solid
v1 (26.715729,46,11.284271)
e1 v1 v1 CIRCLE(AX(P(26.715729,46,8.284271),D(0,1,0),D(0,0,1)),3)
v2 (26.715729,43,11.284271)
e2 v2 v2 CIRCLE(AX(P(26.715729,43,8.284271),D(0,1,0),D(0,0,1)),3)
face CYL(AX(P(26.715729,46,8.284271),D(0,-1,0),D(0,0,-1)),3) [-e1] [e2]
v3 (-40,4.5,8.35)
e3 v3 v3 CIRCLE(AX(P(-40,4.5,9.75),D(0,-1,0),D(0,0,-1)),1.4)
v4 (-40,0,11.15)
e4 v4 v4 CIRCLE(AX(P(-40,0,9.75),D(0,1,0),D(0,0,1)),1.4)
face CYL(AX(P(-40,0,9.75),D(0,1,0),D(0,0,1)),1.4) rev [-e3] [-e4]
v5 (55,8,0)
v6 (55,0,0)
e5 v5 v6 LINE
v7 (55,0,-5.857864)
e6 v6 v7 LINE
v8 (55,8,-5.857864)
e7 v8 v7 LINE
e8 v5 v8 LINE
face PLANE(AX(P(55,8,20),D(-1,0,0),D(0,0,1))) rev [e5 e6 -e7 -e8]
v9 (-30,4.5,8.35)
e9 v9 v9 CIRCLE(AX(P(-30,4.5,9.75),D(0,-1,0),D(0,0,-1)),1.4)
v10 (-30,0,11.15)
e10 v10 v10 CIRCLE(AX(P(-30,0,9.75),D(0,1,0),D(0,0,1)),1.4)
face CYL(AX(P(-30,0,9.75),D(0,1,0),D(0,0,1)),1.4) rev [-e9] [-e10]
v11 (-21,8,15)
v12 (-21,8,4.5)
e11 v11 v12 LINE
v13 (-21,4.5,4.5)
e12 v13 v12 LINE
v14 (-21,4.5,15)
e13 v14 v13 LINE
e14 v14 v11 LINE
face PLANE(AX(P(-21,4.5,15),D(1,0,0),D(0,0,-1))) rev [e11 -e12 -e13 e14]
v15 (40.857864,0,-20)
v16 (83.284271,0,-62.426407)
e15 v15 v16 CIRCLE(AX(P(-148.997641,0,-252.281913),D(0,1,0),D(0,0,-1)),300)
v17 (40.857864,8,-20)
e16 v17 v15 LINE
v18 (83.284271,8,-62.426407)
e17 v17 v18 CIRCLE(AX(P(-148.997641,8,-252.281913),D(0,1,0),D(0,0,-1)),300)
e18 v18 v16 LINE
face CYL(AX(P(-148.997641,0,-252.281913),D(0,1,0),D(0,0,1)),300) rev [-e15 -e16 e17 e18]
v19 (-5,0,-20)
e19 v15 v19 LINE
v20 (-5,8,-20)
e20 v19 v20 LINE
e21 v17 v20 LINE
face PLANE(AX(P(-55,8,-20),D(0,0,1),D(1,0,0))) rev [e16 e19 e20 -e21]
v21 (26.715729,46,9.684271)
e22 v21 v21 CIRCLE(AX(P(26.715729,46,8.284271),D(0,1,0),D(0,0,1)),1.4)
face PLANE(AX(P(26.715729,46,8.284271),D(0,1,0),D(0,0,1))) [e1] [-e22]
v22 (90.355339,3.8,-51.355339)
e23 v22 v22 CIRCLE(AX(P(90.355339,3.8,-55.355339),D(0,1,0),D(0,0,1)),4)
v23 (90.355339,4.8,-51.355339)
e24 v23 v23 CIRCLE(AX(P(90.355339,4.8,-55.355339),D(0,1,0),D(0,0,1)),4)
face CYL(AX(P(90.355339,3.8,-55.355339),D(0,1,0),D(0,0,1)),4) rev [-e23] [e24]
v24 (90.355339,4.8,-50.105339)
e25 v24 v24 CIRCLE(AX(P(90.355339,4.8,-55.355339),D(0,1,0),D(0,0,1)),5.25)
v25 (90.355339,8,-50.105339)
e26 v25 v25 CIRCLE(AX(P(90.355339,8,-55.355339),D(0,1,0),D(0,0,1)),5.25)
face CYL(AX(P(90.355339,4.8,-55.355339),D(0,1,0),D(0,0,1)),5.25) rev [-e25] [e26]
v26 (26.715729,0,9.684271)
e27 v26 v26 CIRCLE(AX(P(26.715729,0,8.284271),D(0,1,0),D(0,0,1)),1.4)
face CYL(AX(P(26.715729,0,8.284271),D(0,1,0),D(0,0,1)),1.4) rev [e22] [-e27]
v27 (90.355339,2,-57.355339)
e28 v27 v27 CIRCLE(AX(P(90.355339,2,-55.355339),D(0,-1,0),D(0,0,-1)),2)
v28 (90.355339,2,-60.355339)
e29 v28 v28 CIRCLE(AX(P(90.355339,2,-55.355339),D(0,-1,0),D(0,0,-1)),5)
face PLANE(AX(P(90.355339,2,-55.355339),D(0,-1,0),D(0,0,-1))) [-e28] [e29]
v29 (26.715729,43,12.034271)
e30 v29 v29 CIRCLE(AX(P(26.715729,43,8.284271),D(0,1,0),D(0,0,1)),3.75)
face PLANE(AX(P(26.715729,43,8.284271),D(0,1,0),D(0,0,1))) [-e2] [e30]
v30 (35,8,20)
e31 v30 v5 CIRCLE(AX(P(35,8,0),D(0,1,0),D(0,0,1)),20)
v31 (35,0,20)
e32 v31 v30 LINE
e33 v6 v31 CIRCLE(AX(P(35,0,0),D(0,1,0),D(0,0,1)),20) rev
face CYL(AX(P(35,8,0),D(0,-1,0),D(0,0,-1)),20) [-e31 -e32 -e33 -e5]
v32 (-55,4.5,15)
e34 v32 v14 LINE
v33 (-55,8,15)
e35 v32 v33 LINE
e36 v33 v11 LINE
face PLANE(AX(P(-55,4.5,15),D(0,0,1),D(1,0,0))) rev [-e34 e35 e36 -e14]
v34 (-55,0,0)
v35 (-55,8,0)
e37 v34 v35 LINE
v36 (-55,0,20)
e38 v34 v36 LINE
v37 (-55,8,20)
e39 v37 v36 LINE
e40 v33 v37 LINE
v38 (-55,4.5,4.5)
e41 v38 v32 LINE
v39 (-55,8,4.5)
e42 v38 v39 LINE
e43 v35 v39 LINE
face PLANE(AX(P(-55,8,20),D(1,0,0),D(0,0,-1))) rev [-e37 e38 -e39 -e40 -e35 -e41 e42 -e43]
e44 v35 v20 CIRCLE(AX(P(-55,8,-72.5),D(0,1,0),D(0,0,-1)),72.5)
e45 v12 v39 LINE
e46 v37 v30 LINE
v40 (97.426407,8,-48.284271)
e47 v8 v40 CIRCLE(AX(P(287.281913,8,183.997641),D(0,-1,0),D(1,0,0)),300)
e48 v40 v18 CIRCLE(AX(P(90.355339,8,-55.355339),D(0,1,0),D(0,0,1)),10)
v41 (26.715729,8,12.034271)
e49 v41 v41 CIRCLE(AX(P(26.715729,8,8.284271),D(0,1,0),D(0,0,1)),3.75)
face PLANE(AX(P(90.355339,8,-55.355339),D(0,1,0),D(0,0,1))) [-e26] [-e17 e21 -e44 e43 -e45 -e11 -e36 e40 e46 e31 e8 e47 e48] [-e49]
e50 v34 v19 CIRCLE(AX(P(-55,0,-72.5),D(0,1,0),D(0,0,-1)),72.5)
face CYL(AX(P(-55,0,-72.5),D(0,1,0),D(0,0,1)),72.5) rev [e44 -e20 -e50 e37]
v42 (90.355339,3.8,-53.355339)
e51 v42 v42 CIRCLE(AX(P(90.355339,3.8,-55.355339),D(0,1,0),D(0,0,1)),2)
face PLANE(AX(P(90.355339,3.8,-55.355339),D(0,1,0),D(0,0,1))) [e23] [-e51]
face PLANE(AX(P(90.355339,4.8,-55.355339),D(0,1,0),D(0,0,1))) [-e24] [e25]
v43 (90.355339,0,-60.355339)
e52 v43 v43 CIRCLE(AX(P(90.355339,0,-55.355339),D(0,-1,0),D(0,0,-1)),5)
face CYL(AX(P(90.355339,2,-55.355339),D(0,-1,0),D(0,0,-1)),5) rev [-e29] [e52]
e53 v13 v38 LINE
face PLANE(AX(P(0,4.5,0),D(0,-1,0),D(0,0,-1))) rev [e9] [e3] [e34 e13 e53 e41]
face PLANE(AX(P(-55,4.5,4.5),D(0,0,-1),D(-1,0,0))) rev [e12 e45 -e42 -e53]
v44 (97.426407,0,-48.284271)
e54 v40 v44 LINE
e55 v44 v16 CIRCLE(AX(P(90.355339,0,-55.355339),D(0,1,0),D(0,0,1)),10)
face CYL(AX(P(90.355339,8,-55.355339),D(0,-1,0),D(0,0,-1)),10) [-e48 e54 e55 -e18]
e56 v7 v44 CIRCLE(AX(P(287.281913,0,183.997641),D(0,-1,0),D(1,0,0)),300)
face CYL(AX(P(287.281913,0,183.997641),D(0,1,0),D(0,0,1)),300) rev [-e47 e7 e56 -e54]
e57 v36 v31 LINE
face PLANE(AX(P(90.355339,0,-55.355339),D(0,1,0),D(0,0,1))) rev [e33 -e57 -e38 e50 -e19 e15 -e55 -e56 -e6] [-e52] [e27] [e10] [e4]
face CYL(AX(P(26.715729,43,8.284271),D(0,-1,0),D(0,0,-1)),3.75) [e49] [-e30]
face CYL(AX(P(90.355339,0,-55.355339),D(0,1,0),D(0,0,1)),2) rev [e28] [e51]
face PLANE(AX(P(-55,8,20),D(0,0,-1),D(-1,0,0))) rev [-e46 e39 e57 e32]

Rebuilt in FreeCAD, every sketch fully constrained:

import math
import FreeCAD as App
import Part
import Sketcher
from FreeCAD import Vector
Q = App.Units.Quantity


def edges_at(feature, points):
    """Names of the edges that pass closest to the given points."""
    edges = feature.Shape.Edges
    near = lambda p: min(range(len(edges)), key=lambda i: edges[i].distToShape(Part.Vertex(*p))[0])
    return sorted({f"Edge{near(p) + 1}" for p in points})

doc = App.newDocument("Part")
body = doc.addObject("PartDesign::Body", "Body")

sketch1 = body.newObject("Sketcher::SketchObject", "Sketch")
sketch1.AttachmentSupport = (doc.getObject("XZ_Plane"), [""])
sketch1.MapMode = "FlatFace"
sketch1.addGeometry([
    Part.LineSegment(Vector(83, -62, 0), Vector(41, -20, 0)),
    Part.LineSegment(Vector(41, -20, 0), Vector(-55, -20, 0)),
    Part.LineSegment(Vector(-55, -20, 0), Vector(-55, 20, 0)),
    Part.LineSegment(Vector(-55, 20, 0), Vector(55, 20, 0)),
    Part.LineSegment(Vector(55, 20, 0), Vector(55, -6, 0)),
    Part.LineSegment(Vector(55, -6, 0), Vector(97, -48, 0)),
    Part.ArcOfCircle(Part.Circle(Vector(90, -55, 0), Vector(0, 0, 1), 10), math.radians(-135), math.radians(45)),
], False)
sketch1.addConstraint([
    Sketcher.Constraint("Coincident", 0, 2, 1, 1),
    Sketcher.Constraint("Coincident", 1, 2, 2, 1),
    Sketcher.Constraint("Coincident", 2, 2, 3, 1),
    Sketcher.Constraint("Coincident", 3, 2, 4, 1),
    Sketcher.Constraint("Coincident", 4, 2, 5, 1),
    Sketcher.Constraint("Tangent", 5, 2, 6, 2),
    Sketcher.Constraint("Tangent", 6, 1, 0, 1),
    Sketcher.Constraint("Horizontal", 1),
    Sketcher.Constraint("Vertical", 2),
    Sketcher.Constraint("Horizontal", 3),
    Sketcher.Constraint("Vertical", 4),
    Sketcher.Constraint("Symmetric", 1, 2, 3, 2, -1, 1),
    Sketcher.Constraint("Parallel", 0, 5),
    Sketcher.Constraint("Equal", 0, 5),
    Sketcher.Constraint("Radius", 6, Q("10 mm")),
    Sketcher.Constraint("DistanceX", 3, 1, 3, 2, Q("110 mm")),
    Sketcher.Constraint("DistanceY", 2, 1, 2, 2, Q("40 mm")),
    Sketcher.Constraint("Angle", 0, Q("135 deg")),
    Sketcher.Constraint("Distance", 0, Q("60 mm")),
])
pad1 = body.newObject("PartDesign::Pad", "Pad")
pad1.Profile = sketch1
pad1.Length = 8
pad1.Reversed = True

sketch2 = body.newObject("Sketcher::SketchObject", "Sketch001")
sketch2.AttachmentSupport = (doc.getObject("XZ_Plane"), [""])
sketch2.MapMode = "FlatFace"
sketch2.AttachmentOffset = App.Placement(Vector(0, 0, -8), App.Rotation())
sketch2.addGeometry([
    Part.Circle(Vector(90.4, -55.4, 0), Vector(0, 0, 1), 1.4),
    Part.Circle(Vector(26.7, 8.3, 0), Vector(0, 0, 1), 1.4),
], False)
sketch2.addConstraint([
    Sketcher.Constraint("Equal", 0, 1),
    Sketcher.Constraint("Diameter", 0, Q("2.8 mm")),
    Sketcher.Constraint("DistanceX", -1, 1, 0, 3, Q("90.355339 mm")),
    Sketcher.Constraint("DistanceY", 0, 3, -1, 1, Q("55.355339 mm")),
    Sketcher.Constraint("DistanceX", -1, 1, 1, 3, Q("26.715729 mm")),
    Sketcher.Constraint("DistanceY", -1, 1, 1, 3, Q("8.284271 mm")),
])
pocket1 = body.newObject("PartDesign::Pocket", "Pocket")
pocket1.Profile = sketch2
pocket1.Type = "ThroughAll"
pocket1.Midplane = True

sketch3 = body.newObject("Sketcher::SketchObject", "Sketch002")
sketch3.AttachmentSupport = (doc.getObject("XZ_Plane"), [""])
sketch3.MapMode = "FlatFace"
sketch3.AttachmentOffset = App.Placement(Vector(0, 0, -8), App.Rotation())
sketch3.addGeometry([
    Part.LineSegment(Vector(83, -62, 0), Vector(41, -20, 0)),
    Part.ArcOfCircle(Part.Circle(Vector(-149, -252, 0), Vector(0, 0, 1), 300), math.radians(39.26), math.radians(50.74)),
], False)
sketch3.addConstraint([
    Sketcher.Constraint("Coincident", 0, 1, 1, 1),
    Sketcher.Constraint("Coincident", 1, 2, 0, 2),
    Sketcher.Constraint("Radius", 1, Q("300 mm")),
    Sketcher.Constraint("Angle", 0, Q("135 deg")),
    Sketcher.Constraint("Distance", 0, Q("60 mm")),
    Sketcher.Constraint("DistanceY", 1, 2, -1, 1, Q("20 mm")),
    Sketcher.Constraint("DistanceX", 1, 3, -1, 1, Q("148.997641 mm")),
])
pocket2 = body.newObject("PartDesign::Pocket", "Pocket001")
pocket2.Profile = sketch3
pocket2.Length = 242.054281
pocket2.Midplane = True
doc.recompute()

datumplane = body.newObject("PartDesign::Plane", "DatumPlane")
datumplane.Placement = App.Placement(Vector(17.5, 0, 17.5), App.Rotation(Vector(-0.707106781, 0, 0.707106781), Vector(0, -1, 0), Vector(0.707106781, 0, 0.707106781), "ZXY"))
mirrored = body.newObject("PartDesign::Mirrored", "Mirrored")
mirrored.Originals = [pocket2]
mirrored.MirrorPlane = (datumplane, [""])
body.Tip = mirrored

sketch4 = body.newObject("Sketcher::SketchObject", "Sketch003")
sketch4.AttachmentSupport = (doc.getObject("XZ_Plane"), [""])
sketch4.MapMode = "FlatFace"
sketch4.AttachmentOffset = App.Placement(Vector(0, 0, -8), App.Rotation())
sketch4.addGeometry(Part.Circle(Vector(90, -55, 0), Vector(0, 0, 1), 5), False)
sketch4.addConstraint([
    Sketcher.Constraint("Diameter", 0, Q("10.5 mm")),
    Sketcher.Constraint("DistanceX", -1, 1, 0, 3, Q("90.355339 mm")),
    Sketcher.Constraint("DistanceY", 0, 3, -1, 1, Q("55.355339 mm")),
])
pocket3 = body.newObject("PartDesign::Pocket", "Pocket002")
pocket3.Profile = sketch4
pocket3.Length = 3.2
pocket3.Reversed = True

sketch5 = body.newObject("Sketcher::SketchObject", "Sketch004")
sketch5.AttachmentSupport = (doc.getObject("XZ_Plane"), [""])
sketch5.MapMode = "FlatFace"
sketch5.AttachmentOffset = App.Placement(Vector(0, 0, -4.8), App.Rotation())
sketch5.addGeometry(Part.Circle(Vector(90.4, -55.4, 0), Vector(0, 0, 1), 4), False)
sketch5.addConstraint([
    Sketcher.Constraint("Diameter", 0, Q("8 mm")),
    Sketcher.Constraint("DistanceX", -1, 1, 0, 3, Q("90.355339 mm")),
    Sketcher.Constraint("DistanceY", 0, 3, -1, 1, Q("55.355339 mm")),
])
pocket4 = body.newObject("PartDesign::Pocket", "Pocket003")
pocket4.Profile = sketch5
pocket4.Length = 1
pocket4.Reversed = True

sketch6 = body.newObject("Sketcher::SketchObject", "Sketch005")
sketch6.AttachmentSupport = (doc.getObject("XZ_Plane"), [""])
sketch6.MapMode = "FlatFace"
sketch6.addGeometry(Part.Circle(Vector(90, -55, 0), Vector(0, 0, 1), 5), False)
sketch6.addConstraint([
    Sketcher.Constraint("Diameter", 0, Q("10 mm")),
    Sketcher.Constraint("DistanceX", -1, 1, 0, 3, Q("90.355339 mm")),
    Sketcher.Constraint("DistanceY", 0, 3, -1, 1, Q("55.355339 mm")),
])
pocket5 = body.newObject("PartDesign::Pocket", "Pocket004")
pocket5.Profile = sketch6
pocket5.Length = 2

sketch7 = body.newObject("Sketcher::SketchObject", "Sketch006")
sketch7.AttachmentSupport = (doc.getObject("XZ_Plane"), [""])
sketch7.MapMode = "FlatFace"
sketch7.AttachmentOffset = App.Placement(Vector(0, 0, -3.8), App.Rotation())
sketch7.addGeometry(Part.Circle(Vector(90.4, -55.4, 0), Vector(0, 0, 1), 2), False)
sketch7.addConstraint([
    Sketcher.Constraint("Diameter", 0, Q("4 mm")),
    Sketcher.Constraint("DistanceX", -1, 1, 0, 3, Q("90.355339 mm")),
    Sketcher.Constraint("DistanceY", 0, 3, -1, 1, Q("55.355339 mm")),
])
pocket6 = body.newObject("PartDesign::Pocket", "Pocket005")
pocket6.Profile = sketch7
pocket6.Type = "ThroughAll"
pocket6.Midplane = True

sketch8 = body.newObject("Sketcher::SketchObject", "Sketch007")
sketch8.AttachmentSupport = (doc.getObject("XZ_Plane"), [""])
sketch8.MapMode = "FlatFace"
sketch8.AttachmentOffset = App.Placement(Vector(0, 0, -8), App.Rotation())
sketch8.addGeometry(Part.Circle(Vector(26.7, 8.3, 0), Vector(0, 0, 1), 3.8), False)
sketch8.addConstraint([
    Sketcher.Constraint("Diameter", 0, Q("7.5 mm")),
    Sketcher.Constraint("DistanceX", -1, 1, 0, 3, Q("26.715729 mm")),
    Sketcher.Constraint("DistanceY", -1, 1, 0, 3, Q("8.284271 mm")),
])
pad2 = body.newObject("PartDesign::Pad", "Pad001")
pad2.Profile = sketch8
pad2.Length = 35
pad2.Reversed = True

sketch9 = body.newObject("Sketcher::SketchObject", "Sketch008")
sketch9.AttachmentSupport = (doc.getObject("XZ_Plane"), [""])
sketch9.MapMode = "FlatFace"
sketch9.AttachmentOffset = App.Placement(Vector(0, 0, -43), App.Rotation())
sketch9.addGeometry(Part.Circle(Vector(26.7, 8.3, 0), Vector(0, 0, 1), 3), False)
sketch9.addConstraint([
    Sketcher.Constraint("Diameter", 0, Q("6 mm")),
    Sketcher.Constraint("DistanceX", -1, 1, 0, 3, Q("26.715729 mm")),
    Sketcher.Constraint("DistanceY", -1, 1, 0, 3, Q("8.284271 mm")),
])
pad3 = body.newObject("PartDesign::Pad", "Pad002")
pad3.Profile = sketch9
pad3.Length = 3
pad3.Reversed = True

sketch10 = body.newObject("Sketcher::SketchObject", "Sketch009")
sketch10.AttachmentSupport = (doc.getObject("XZ_Plane"), [""])
sketch10.MapMode = "FlatFace"
sketch10.AttachmentOffset = App.Placement(Vector(0, 0, -46), App.Rotation())
sketch10.addGeometry(Part.Circle(Vector(26.7, 8.3, 0), Vector(0, 0, 1), 1.4), False)
sketch10.addConstraint([
    Sketcher.Constraint("Diameter", 0, Q("2.8 mm")),
    Sketcher.Constraint("DistanceX", -1, 1, 0, 3, Q("26.715729 mm")),
    Sketcher.Constraint("DistanceY", -1, 1, 0, 3, Q("8.284271 mm")),
])
pocket7 = body.newObject("PartDesign::Pocket", "Pocket006")
pocket7.Profile = sketch10
pocket7.Type = "ThroughAll"
pocket7.Midplane = True

sketch11 = body.newObject("Sketcher::SketchObject", "Sketch010")
sketch11.AttachmentSupport = (doc.getObject("XZ_Plane"), [""])
sketch11.MapMode = "FlatFace"
sketch11.AttachmentOffset = App.Placement(Vector(0, 0, -8), App.Rotation())
sketch11.addGeometry([
    Part.LineSegment(Vector(-55, -20, 0), Vector(-55, 0, 0)),
    Part.ArcOfCircle(Part.Circle(Vector(-55, -73, 0), Vector(0, 0, 1), 73), math.radians(46), math.radians(90)),
    Part.LineSegment(Vector(-5, -20, 0), Vector(-55, -20, 0)),
], False)
sketch11.addConstraint([
    Sketcher.Constraint("Coincident", 0, 2, 1, 2),
    Sketcher.Constraint("Coincident", 1, 1, 2, 1),
    Sketcher.Constraint("Coincident", 2, 2, 0, 1),
    Sketcher.Constraint("Vertical", 0),
    Sketcher.Constraint("Horizontal", 2),
    Sketcher.Constraint("PointOnObject", 0, 2, -1),
    Sketcher.Constraint("Vertical", 1, 3, 0, 2),
    Sketcher.Constraint("Radius", 1, Q("72.5 mm")),
    Sketcher.Constraint("DistanceX", 2, 2, 2, 1, Q("50 mm")),
    Sketcher.Constraint("DistanceX", 1, 3, -1, 1, Q("55 mm")),
])
pocket8 = body.newObject("PartDesign::Pocket", "Pocket007")
pocket8.Profile = sketch11
pocket8.Type = "ThroughAll"
pocket8.Midplane = True

sketch12 = body.newObject("Sketcher::SketchObject", "Sketch011")
sketch12.AttachmentSupport = (doc.getObject("XZ_Plane"), [""])
sketch12.MapMode = "FlatFace"
sketch12.AttachmentOffset = App.Placement(Vector(0, 0, -8), App.Rotation())
sketch12.addGeometry([
    Part.LineSegment(Vector(-55, 4, 0), Vector(-55, 15, 0)),
    Part.LineSegment(Vector(-55, 15, 0), Vector(-21, 15, 0)),
    Part.LineSegment(Vector(-21, 15, 0), Vector(-21, 4, 0)),
    Part.LineSegment(Vector(-21, 4, 0), Vector(-55, 4, 0)),
], False)
sketch12.addConstraint([
    Sketcher.Constraint("Coincident", 0, 2, 1, 1),
    Sketcher.Constraint("Coincident", 1, 2, 2, 1),
    Sketcher.Constraint("Coincident", 2, 2, 3, 1),
    Sketcher.Constraint("Coincident", 3, 2, 0, 1),
    Sketcher.Constraint("Vertical", 0),
    Sketcher.Constraint("Horizontal", 1),
    Sketcher.Constraint("Vertical", 2),
    Sketcher.Constraint("Horizontal", 3),
    Sketcher.Constraint("DistanceX", 1, 1, 1, 2, Q("34 mm")),
    Sketcher.Constraint("DistanceY", 0, 1, 0, 2, Q("10.5 mm")),
    Sketcher.Constraint("DistanceX", 0, 2, -1, 1, Q("55 mm")),
    Sketcher.Constraint("DistanceY", -1, 1, 0, 2, Q("15 mm")),
])
pocket9 = body.newObject("PartDesign::Pocket", "Pocket008")
pocket9.Profile = sketch12
pocket9.Length = 3.5
pocket9.Reversed = True
doc.recompute()

fillet = body.newObject("PartDesign::Fillet", "Fillet")
fillet.Base = (pocket9, edges_at(pocket9, [(55, 4, 20)]))
fillet.Radius = 20

sketch13 = body.newObject("Sketcher::SketchObject", "Sketch012")
sketch13.AttachmentSupport = (doc.getObject("XZ_Plane"), [""])
sketch13.MapMode = "FlatFace"
sketch13.AttachmentOffset = App.Placement(Vector(0, 0, -4.5), App.Rotation())
sketch13.addGeometry([
    Part.Circle(Vector(-40, 9.8, 0), Vector(0, 0, 1), 1.4),
    Part.Circle(Vector(-30, 9.8, 0), Vector(0, 0, 1), 1.4),
], False)
sketch13.addConstraint([
    Sketcher.Constraint("Equal", 0, 1),
    Sketcher.Constraint("Horizontal", 0, 3, 1, 3),
    Sketcher.Constraint("Diameter", 0, Q("2.8 mm")),
    Sketcher.Constraint("DistanceX", 0, 3, -1, 1, Q("40 mm")),
    Sketcher.Constraint("DistanceX", 1, 3, -1, 1, Q("30 mm")),
    Sketcher.Constraint("DistanceY", -1, 1, 0, 3, Q("9.75 mm")),
])
pocket10 = body.newObject("PartDesign::Pocket", "Pocket009")
pocket10.Profile = sketch13
pocket10.Type = "ThroughAll"
pocket10.Midplane = True

doc.recompute()
